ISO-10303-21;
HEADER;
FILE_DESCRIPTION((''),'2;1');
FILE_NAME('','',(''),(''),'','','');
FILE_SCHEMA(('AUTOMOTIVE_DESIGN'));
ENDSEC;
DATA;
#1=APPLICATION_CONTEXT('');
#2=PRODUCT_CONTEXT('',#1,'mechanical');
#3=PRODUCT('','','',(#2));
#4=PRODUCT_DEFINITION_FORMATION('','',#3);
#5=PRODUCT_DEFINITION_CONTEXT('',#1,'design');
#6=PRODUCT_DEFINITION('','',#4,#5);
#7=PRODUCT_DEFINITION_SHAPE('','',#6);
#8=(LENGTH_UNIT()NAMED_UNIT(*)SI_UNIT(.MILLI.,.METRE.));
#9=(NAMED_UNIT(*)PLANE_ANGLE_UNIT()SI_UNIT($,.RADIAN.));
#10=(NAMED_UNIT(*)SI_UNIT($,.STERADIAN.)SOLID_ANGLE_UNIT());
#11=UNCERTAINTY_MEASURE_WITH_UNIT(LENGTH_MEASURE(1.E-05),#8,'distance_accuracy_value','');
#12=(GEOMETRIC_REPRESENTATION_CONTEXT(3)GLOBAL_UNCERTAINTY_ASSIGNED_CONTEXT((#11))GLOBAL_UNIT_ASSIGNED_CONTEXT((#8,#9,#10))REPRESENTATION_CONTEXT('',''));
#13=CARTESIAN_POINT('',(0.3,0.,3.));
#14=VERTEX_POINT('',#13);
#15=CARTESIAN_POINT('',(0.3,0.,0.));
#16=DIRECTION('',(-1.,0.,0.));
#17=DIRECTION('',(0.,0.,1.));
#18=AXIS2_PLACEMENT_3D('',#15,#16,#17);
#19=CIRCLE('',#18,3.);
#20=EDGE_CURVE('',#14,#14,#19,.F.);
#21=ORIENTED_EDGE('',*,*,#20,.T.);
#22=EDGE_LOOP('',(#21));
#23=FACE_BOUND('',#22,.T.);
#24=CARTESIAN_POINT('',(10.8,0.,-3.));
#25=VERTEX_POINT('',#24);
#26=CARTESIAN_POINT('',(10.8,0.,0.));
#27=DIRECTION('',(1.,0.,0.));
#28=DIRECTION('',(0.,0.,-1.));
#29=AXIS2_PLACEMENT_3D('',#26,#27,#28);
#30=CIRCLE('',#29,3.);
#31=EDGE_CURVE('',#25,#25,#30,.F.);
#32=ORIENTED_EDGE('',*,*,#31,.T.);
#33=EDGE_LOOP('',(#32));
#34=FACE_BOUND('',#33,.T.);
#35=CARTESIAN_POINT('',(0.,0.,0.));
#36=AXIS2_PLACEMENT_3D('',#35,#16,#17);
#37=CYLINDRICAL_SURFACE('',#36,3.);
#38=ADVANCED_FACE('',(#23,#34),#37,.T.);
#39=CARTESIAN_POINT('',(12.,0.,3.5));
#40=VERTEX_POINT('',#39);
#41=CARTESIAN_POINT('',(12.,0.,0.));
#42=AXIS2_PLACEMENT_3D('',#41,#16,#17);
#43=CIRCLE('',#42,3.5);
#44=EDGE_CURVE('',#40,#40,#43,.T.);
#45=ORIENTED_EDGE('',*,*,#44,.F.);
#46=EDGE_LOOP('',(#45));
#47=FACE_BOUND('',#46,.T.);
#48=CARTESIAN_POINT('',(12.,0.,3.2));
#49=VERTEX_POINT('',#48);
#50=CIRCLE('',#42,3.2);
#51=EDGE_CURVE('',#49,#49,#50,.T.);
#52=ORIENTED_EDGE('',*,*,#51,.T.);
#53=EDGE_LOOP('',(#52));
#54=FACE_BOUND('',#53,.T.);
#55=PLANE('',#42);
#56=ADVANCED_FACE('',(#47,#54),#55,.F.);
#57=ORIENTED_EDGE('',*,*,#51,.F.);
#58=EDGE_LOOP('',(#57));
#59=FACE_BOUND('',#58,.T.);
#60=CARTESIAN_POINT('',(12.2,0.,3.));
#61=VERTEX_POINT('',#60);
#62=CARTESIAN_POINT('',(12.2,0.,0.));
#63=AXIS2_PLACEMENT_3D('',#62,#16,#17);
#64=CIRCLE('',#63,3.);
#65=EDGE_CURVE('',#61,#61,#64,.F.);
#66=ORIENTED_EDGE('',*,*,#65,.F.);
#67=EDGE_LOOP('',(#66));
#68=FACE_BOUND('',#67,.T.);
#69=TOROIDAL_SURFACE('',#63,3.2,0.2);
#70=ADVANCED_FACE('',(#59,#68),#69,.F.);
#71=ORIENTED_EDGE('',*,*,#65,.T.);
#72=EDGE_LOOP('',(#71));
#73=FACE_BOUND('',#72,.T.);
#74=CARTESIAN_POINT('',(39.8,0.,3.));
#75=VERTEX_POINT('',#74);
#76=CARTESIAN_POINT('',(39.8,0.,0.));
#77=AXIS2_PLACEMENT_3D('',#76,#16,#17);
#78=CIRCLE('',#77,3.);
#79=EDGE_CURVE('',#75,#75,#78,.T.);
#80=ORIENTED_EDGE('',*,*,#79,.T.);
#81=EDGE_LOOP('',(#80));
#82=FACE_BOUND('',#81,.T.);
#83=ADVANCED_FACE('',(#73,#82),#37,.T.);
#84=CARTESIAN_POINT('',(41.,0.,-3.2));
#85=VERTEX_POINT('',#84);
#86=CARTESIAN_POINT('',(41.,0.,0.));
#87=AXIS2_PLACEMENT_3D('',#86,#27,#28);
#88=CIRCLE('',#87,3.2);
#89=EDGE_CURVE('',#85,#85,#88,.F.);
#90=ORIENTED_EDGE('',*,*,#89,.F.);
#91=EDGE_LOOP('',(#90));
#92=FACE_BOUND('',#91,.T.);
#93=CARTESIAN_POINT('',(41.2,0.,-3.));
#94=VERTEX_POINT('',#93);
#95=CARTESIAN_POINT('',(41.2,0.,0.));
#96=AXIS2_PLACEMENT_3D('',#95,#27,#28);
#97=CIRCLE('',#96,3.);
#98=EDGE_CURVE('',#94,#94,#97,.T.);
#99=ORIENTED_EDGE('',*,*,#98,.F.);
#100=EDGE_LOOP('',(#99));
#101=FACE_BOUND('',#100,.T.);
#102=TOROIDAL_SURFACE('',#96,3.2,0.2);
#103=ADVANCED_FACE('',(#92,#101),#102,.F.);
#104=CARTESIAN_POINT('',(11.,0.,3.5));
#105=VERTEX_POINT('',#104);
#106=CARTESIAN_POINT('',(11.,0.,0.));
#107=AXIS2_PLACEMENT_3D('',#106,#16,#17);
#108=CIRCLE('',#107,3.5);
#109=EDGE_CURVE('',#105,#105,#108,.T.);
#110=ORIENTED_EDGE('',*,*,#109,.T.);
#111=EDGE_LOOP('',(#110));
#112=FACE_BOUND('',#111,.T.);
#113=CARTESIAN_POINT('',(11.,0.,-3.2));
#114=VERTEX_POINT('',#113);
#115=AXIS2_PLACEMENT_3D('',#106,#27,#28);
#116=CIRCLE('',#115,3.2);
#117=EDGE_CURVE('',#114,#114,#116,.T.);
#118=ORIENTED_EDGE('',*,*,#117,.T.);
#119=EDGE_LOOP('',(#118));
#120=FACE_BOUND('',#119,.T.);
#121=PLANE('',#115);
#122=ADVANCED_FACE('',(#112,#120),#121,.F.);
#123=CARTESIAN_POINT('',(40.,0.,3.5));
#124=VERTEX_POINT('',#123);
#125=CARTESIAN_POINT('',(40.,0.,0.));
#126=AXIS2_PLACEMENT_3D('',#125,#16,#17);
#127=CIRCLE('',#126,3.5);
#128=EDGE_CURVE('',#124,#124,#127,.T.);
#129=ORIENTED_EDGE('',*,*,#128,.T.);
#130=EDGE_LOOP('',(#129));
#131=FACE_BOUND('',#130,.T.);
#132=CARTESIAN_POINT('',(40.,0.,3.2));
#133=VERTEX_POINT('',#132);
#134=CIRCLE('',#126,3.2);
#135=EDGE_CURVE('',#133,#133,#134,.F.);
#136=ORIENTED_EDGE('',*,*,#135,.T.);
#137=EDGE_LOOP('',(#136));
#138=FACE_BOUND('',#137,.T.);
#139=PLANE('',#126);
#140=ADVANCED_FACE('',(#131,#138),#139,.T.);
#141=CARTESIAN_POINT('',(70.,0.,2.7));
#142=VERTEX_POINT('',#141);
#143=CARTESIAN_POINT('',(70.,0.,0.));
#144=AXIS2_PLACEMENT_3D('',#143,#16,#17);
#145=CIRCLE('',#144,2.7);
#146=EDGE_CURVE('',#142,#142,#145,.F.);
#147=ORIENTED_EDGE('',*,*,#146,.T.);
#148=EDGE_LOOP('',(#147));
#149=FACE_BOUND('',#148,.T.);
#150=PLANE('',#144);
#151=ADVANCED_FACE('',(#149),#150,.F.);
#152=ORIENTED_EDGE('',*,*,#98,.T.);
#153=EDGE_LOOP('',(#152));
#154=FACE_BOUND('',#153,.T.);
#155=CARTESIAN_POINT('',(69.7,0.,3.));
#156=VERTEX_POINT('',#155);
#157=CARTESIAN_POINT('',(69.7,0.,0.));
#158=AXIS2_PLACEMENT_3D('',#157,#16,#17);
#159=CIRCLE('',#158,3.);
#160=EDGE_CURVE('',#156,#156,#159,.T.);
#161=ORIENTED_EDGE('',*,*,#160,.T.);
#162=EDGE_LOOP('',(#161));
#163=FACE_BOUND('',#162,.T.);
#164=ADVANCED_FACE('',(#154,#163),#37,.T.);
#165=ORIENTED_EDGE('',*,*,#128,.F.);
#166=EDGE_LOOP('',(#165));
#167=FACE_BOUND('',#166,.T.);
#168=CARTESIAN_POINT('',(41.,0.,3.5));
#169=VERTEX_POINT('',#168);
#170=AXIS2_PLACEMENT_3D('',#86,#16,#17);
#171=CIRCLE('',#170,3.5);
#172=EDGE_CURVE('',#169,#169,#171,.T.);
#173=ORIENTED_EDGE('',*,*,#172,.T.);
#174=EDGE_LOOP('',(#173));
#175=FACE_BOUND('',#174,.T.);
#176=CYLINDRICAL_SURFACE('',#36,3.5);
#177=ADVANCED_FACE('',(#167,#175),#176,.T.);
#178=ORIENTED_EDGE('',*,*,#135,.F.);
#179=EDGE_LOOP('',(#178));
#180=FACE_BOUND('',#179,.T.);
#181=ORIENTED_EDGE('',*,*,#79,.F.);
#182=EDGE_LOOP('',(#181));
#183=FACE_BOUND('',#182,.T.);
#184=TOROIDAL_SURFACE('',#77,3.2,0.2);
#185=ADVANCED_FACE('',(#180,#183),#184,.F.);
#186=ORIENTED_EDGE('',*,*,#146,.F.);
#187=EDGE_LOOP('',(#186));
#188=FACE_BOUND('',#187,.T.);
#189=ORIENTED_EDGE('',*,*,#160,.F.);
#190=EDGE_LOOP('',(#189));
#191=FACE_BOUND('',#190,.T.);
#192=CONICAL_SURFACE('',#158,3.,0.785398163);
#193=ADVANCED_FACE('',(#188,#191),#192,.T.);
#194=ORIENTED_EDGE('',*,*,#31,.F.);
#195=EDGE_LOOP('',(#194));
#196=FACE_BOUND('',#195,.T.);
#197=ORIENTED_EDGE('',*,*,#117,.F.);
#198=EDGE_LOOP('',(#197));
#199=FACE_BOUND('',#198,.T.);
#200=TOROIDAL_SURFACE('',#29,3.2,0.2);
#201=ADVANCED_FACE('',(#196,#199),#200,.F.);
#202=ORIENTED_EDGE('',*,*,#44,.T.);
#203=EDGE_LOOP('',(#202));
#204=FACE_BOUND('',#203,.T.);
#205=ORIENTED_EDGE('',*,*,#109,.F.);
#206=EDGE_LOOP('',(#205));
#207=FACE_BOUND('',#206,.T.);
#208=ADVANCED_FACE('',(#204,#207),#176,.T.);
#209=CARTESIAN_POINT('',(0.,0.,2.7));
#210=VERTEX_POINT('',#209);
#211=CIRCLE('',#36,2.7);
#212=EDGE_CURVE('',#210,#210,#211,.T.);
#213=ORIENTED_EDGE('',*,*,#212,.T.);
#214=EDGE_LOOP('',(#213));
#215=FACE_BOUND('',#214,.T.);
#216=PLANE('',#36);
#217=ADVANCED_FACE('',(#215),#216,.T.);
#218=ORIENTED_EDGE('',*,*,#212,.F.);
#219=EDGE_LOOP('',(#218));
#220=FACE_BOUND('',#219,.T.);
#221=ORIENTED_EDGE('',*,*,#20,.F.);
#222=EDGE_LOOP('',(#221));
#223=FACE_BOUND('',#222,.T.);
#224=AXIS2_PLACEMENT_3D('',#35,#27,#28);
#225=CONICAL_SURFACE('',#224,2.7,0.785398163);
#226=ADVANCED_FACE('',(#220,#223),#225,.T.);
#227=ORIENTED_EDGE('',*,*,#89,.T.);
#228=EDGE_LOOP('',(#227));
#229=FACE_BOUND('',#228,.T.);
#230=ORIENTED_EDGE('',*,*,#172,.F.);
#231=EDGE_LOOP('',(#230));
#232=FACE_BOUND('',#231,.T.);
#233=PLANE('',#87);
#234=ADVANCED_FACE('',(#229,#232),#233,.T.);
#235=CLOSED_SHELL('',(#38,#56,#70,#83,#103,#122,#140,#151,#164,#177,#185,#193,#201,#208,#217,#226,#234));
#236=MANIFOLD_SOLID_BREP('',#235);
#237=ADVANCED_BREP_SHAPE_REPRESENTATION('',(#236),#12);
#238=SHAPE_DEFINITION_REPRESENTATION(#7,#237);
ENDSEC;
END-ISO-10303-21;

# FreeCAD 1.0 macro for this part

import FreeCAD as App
import Part
import Sketcher

V = App.Vector
Q = App.Units.Quantity


def edges_at(feature, points):
    """Names of the edges that pass closest to the given points."""
    edges = feature.Shape.Edges
    near = lambda p: min(range(len(edges)), key=lambda i: edges[i].distToShape(Part.Vertex(*p))[0])
    return sorted({f"Edge{near(p) + 1}" for p in points})

doc = App.newDocument("Part")
body = doc.addObject("PartDesign::Body", "Body")

sketch1 = doc.addObject("Sketcher::SketchObject", "Sketch")
body.addObject(sketch1)
sketch1.AttachmentSupport = (doc.XY_Plane, [""])
sketch1.MapMode = "FlatFace"
sketch1.addGeometry(Part.LineSegment(V(12, 3, 0), V(12, 3.5, 0)), False)
sketch1.addGeometry(Part.LineSegment(V(12, 3.5, 0), V(11, 3.5, 0)), False)
sketch1.addGeometry(Part.LineSegment(V(11, 3.5, 0), V(11, 3, 0)), False)
sketch1.addGeometry(Part.LineSegment(V(11, 3, 0), V(0, 3, 0)), False)
sketch1.addGeometry(Part.LineSegment(V(0, 3, 0), V(0, 0, 0)), False)
sketch1.addGeometry(Part.LineSegment(V(0, 0, 0), V(70, 0, 0)), False)
sketch1.addGeometry(Part.LineSegment(V(70, 0, 0), V(70, 3, 0)), False)
sketch1.addGeometry(Part.LineSegment(V(70, 3, 0), V(41, 3, 0)), False)
sketch1.addGeometry(Part.LineSegment(V(41, 3, 0), V(41, 3.5, 0)), False)
sketch1.addGeometry(Part.LineSegment(V(41, 3.5, 0), V(40, 3.5, 0)), False)
sketch1.addGeometry(Part.LineSegment(V(40, 3.5, 0), V(40, 3, 0)), False)
sketch1.addGeometry(Part.LineSegment(V(40, 3, 0), V(12, 3, 0)), False)
sketch1.addConstraint(Sketcher.Constraint("Coincident", 0, 2, 1, 1))
sketch1.addConstraint(Sketcher.Constraint("Coincident", 1, 2, 2, 1))
sketch1.addConstraint(Sketcher.Constraint("Coincident", 2, 2, 3, 1))
sketch1.addConstraint(Sketcher.Constraint("Coincident", 3, 2, 4, 1))
sketch1.addConstraint(Sketcher.Constraint("Coincident", 4, 2, 5, 1))
sketch1.addConstraint(Sketcher.Constraint("Coincident", 5, 2, 6, 1))
sketch1.addConstraint(Sketcher.Constraint("Coincident", 6, 2, 7, 1))
sketch1.addConstraint(Sketcher.Constraint("Coincident", 7, 2, 8, 1))
sketch1.addConstraint(Sketcher.Constraint("Coincident", 8, 2, 9, 1))
sketch1.addConstraint(Sketcher.Constraint("Coincident", 9, 2, 10, 1))
sketch1.addConstraint(Sketcher.Constraint("Coincident", 10, 2, 11, 1))
sketch1.addConstraint(Sketcher.Constraint("Coincident", 11, 2, 0, 1))
sketch1.addConstraint(Sketcher.Constraint("Vertical", 0))
sketch1.addConstraint(Sketcher.Constraint("Horizontal", 1))
sketch1.addConstraint(Sketcher.Constraint("Vertical", 2))
sketch1.addConstraint(Sketcher.Constraint("Horizontal", 3))
sketch1.addConstraint(Sketcher.Constraint("Vertical", 4))
sketch1.addConstraint(Sketcher.Constraint("Horizontal", 5))
sketch1.addConstraint(Sketcher.Constraint("Vertical", 6))
sketch1.addConstraint(Sketcher.Constraint("Horizontal", 7))
sketch1.addConstraint(Sketcher.Constraint("Vertical", 8))
sketch1.addConstraint(Sketcher.Constraint("Horizontal", 9))
sketch1.addConstraint(Sketcher.Constraint("Vertical", 10))
sketch1.addConstraint(Sketcher.Constraint("Horizontal", 11))
sketch1.addConstraint(Sketcher.Constraint("Coincident", 4, 2, -1, 1))
sketch1.addConstraint(Sketcher.Constraint("Horizontal", 3, 2, 6, 2))
sketch1.addConstraint(Sketcher.Constraint("Horizontal", 1, 2, 8, 2))
sketch1.addConstraint(Sketcher.Constraint("Horizontal", 7, 2, 10, 2))
sketch1.addConstraint(Sketcher.Constraint("Equal", 1, 9))
sketch1.addConstraint(Sketcher.Constraint("DistanceX", 1, 2, 1, 1, Q("1 mm")))
sketch1.addConstraint(Sketcher.Constraint("DistanceX", 3, 2, 3, 1, Q("11 mm")))
sketch1.addConstraint(Sketcher.Constraint("DistanceX", 5, 1, 5, 2, Q("70 mm")))
sketch1.addConstraint(Sketcher.Constraint("DistanceX", 7, 2, 7, 1, Q("29 mm")))
sketch1.addConstraint(Sketcher.Constraint("DistanceY", 4, 2, 4, 1, Q("3 mm")))
sketch1.addConstraint(Sketcher.Constraint("DistanceY", 0, 1, 0, 2, Q("0.5 mm")))
revolution = doc.addObject("PartDesign::Revolution", "Revolution")
body.addObject(revolution)
revolution.Profile = sketch1
revolution.ReferenceAxis = (sketch1, ["H_Axis"])
revolution.Angle = 360
doc.recompute()

fillet = doc.addObject("PartDesign::Fillet", "Fillet")
body.addObject(fillet)
fillet.Base = (revolution, edges_at(revolution, [
    (11, 0, -3),
    (12, 0, -3),
    (40, 0, -3),
    (41, 0, -3),
]))
fillet.Radius = 0.2
doc.recompute()

chamfer = doc.addObject("PartDesign::Chamfer", "Chamfer")
body.addObject(chamfer)
chamfer.Base = (fillet, edges_at(fillet, [(0, 0, -3), (70, 0, -3)]))
chamfer.Size = 0.3

doc.recompute()
